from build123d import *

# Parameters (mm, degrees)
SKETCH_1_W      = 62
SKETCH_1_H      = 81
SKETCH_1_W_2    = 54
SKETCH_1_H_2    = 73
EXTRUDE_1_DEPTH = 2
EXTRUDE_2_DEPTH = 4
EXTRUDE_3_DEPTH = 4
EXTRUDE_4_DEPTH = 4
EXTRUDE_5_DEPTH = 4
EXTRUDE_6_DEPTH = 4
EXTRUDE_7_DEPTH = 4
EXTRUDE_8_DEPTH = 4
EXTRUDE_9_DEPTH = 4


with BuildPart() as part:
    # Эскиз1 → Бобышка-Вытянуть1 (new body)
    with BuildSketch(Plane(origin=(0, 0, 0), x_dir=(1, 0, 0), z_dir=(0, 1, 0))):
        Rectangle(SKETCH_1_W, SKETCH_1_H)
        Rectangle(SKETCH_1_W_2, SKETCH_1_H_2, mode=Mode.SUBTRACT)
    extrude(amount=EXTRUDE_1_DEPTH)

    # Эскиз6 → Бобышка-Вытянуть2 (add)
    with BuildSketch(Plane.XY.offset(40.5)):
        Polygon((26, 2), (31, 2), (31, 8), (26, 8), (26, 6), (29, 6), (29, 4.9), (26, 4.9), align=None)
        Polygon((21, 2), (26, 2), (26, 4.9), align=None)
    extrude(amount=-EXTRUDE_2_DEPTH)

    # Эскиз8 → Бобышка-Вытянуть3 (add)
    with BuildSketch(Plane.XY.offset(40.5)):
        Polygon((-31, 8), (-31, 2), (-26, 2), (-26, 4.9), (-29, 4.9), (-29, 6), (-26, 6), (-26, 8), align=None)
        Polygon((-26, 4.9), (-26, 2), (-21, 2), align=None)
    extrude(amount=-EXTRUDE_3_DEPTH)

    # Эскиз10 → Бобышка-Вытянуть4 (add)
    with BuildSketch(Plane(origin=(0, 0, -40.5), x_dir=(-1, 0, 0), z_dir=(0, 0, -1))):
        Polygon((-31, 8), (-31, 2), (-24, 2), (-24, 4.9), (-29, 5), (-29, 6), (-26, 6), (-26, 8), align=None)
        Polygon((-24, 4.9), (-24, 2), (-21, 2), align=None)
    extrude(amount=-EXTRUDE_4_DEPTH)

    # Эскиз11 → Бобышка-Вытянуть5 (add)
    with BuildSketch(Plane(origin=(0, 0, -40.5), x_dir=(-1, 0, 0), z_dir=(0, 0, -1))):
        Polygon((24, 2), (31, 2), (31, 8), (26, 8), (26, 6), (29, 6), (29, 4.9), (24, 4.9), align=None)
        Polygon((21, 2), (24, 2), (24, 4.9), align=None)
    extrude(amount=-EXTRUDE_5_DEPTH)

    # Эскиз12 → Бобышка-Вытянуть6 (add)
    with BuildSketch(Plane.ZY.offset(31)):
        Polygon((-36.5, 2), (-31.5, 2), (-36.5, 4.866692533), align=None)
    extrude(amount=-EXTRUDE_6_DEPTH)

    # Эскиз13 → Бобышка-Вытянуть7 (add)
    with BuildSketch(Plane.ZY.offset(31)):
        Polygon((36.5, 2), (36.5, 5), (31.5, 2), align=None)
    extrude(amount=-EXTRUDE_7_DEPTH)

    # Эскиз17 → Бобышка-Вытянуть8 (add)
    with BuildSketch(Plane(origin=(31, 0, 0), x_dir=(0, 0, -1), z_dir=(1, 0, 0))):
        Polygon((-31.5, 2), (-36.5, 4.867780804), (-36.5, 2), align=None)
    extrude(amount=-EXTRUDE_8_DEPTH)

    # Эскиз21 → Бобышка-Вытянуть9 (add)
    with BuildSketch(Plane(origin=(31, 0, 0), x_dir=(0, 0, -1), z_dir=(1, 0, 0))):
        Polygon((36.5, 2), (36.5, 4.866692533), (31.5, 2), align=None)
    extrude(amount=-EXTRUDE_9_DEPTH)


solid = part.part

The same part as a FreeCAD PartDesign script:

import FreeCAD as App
import Part
import Sketcher

doc = App.newDocument("Part")
body = doc.addObject("PartDesign::Body", "Body")

sketch1 = doc.addObject("Sketcher::SketchObject", "Sketch")
body.addObject(sketch1)
sketch1.AttachmentSupport = (doc.XZ_Plane, [""])
sketch1.MapMode = "FlatFace"
sketch1.addGeometry(Part.LineSegment(App.Vector(-31, -40, 0), App.Vector(-31, 40, 0)), False)
sketch1.addGeometry(Part.LineSegment(App.Vector(-31, 40, 0), App.Vector(31, 40, 0)), False)
sketch1.addGeometry(Part.LineSegment(App.Vector(31, 40, 0), App.Vector(31, -40, 0)), False)
sketch1.addGeometry(Part.LineSegment(App.Vector(31, -40, 0), App.Vector(-31, -40, 0)), False)
sketch1.addGeometry(Part.LineSegment(App.Vector(27, 36, 0), App.Vector(-27, 36, 0)), False)
sketch1.addGeometry(Part.LineSegment(App.Vector(-27, 36, 0), App.Vector(-27, -36, 0)), False)
sketch1.addGeometry(Part.LineSegment(App.Vector(-27, -36, 0), App.Vector(27, -36, 0)), False)
sketch1.addGeometry(Part.LineSegment(App.Vector(27, -36, 0), App.Vector(27, 36, 0)), False)
sketch1.addConstraint(Sketcher.Constraint("Coincident", 0, 2, 1, 1))
sketch1.addConstraint(Sketcher.Constraint("Coincident", 1, 2, 2, 1))
sketch1.addConstraint(Sketcher.Constraint("Coincident", 2, 2, 3, 1))
sketch1.addConstraint(Sketcher.Constraint("Coincident", 3, 2, 0, 1))
sketch1.addConstraint(Sketcher.Constraint("Coincident", 4, 2, 5, 1))
sketch1.addConstraint(Sketcher.Constraint("Coincident", 5, 2, 6, 1))
sketch1.addConstraint(Sketcher.Constraint("Coincident", 6, 2, 7, 1))
sketch1.addConstraint(Sketcher.Constraint("Coincident", 7, 2, 4, 1))
sketch1.addConstraint(Sketcher.Constraint("Vertical", 0))
sketch1.addConstraint(Sketcher.Constraint("Horizontal", 1))
sketch1.addConstraint(Sketcher.Constraint("Vertical", 2))
sketch1.addConstraint(Sketcher.Constraint("Horizontal", 3))
sketch1.addConstraint(Sketcher.Constraint("Horizontal", 4))
sketch1.addConstraint(Sketcher.Constraint("Vertical", 5))
sketch1.addConstraint(Sketcher.Constraint("Horizontal", 6))
sketch1.addConstraint(Sketcher.Constraint("Vertical", 7))
sketch1.addConstraint(Sketcher.Constraint("Symmetric", 0, 2, 2, 2, -1, 1))
sketch1.addConstraint(Sketcher.Constraint("Symmetric", 4, 2, 6, 2, -1, 1))
sketch1.addConstraint(Sketcher.Constraint("DistanceX", 1, 1, 1, 2, 62.0))
sketch1.addConstraint(Sketcher.Constraint("DistanceX", 4, 2, 4, 1, 54.0))
sketch1.addConstraint(Sketcher.Constraint("DistanceY", 0, 1, 0, 2, 81.0))
sketch1.addConstraint(Sketcher.Constraint("DistanceY", 5, 2, 5, 1, 73.0))
pad1 = doc.addObject("PartDesign::Pad", "Pad")
body.addObject(pad1)
pad1.Profile = sketch1
pad1.Length = 2
pad1.Reversed = True

sketch2 = doc.addObject("Sketcher::SketchObject", "Sketch001")
body.addObject(sketch2)
sketch2.AttachmentSupport = (doc.XY_Plane, [""])
sketch2.MapMode = "FlatFace"
sketch2.AttachmentOffset = App.Placement(App.Vector(0, 0, 40.5), App.Rotation())
sketch2.addGeometry(Part.LineSegment(App.Vector(31, 2, 0), App.Vector(31, 8, 0)), False)
sketch2.addGeometry(Part.LineSegment(App.Vector(31, 8, 0), App.Vector(26, 8, 0)), False)
sketch2.addGeometry(Part.LineSegment(App.Vector(26, 8, 0), App.Vector(26, 6, 0)), False)
sketch2.addGeometry(Part.LineSegment(App.Vector(26, 6, 0), App.Vector(29, 6, 0)), False)
sketch2.addGeometry(Part.LineSegment(App.Vector(29, 6, 0), App.Vector(29, 4.9, 0)), False)
sketch2.addGeometry(Part.LineSegment(App.Vector(29, 4.9, 0), App.Vector(26, 4.9, 0)), False)
sketch2.addGeometry(Part.LineSegment(App.Vector(26, 4.9, 0), App.Vector(21, 2, 0)), False)
sketch2.addGeometry(Part.LineSegment(App.Vector(21, 2, 0), App.Vector(31, 2, 0)), False)
sketch2.addConstraint(Sketcher.Constraint("Coincident", 0, 2, 1, 1))
sketch2.addConstraint(Sketcher.Constraint("Coincident", 1, 2, 2, 1))
sketch2.addConstraint(Sketcher.Constraint("Coincident", 2, 2, 3, 1))
sketch2.addConstraint(Sketcher.Constraint("Coincident", 3, 2, 4, 1))
sketch2.addConstraint(Sketcher.Constraint("Coincident", 4, 2, 5, 1))
sketch2.addConstraint(Sketcher.Constraint("Coincident", 5, 2, 6, 1))
sketch2.addConstraint(Sketcher.Constraint("Coincident", 6, 2, 7, 1))
sketch2.addConstraint(Sketcher.Constraint("Coincident", 7, 2, 0, 1))
sketch2.addConstraint(Sketcher.Constraint("Vertical", 0))
sketch2.addConstraint(Sketcher.Constraint("Horizontal", 1))
sketch2.addConstraint(Sketcher.Constraint("Vertical", 2))
sketch2.addConstraint(Sketcher.Constraint("Horizontal", 3))
sketch2.addConstraint(Sketcher.Constraint("Vertical", 4))
sketch2.addConstraint(Sketcher.Constraint("Horizontal", 5))
sketch2.addConstraint(Sketcher.Constraint("Horizontal", 7))
sketch2.addConstraint(Sketcher.Constraint("Vertical", 2, 2, 5, 2))
sketch2.addConstraint(Sketcher.Constraint("DistanceX", 1, 2, 1, 1, 5.0))
sketch2.addConstraint(Sketcher.Constraint("DistanceX", 3, 1, 3, 2, 3.0))
sketch2.addConstraint(Sketcher.Constraint("DistanceX", 7, 1, 7, 2, 10.0))
sketch2.addConstraint(Sketcher.Constraint("DistanceY", 0, 1, 0, 2, 6.0))
sketch2.addConstraint(Sketcher.Constraint("DistanceY", 2, 2, 2, 1, 2.0))
sketch2.addConstraint(Sketcher.Constraint("DistanceY", 4, 2, 4, 1, 1.1))
sketch2.addConstraint(Sketcher.Constraint("DistanceX", -1, 1, 0, 2, 31.0))
sketch2.addConstraint(Sketcher.Constraint("DistanceY", -1, 1, 0, 2, 8.0))
pad2 = doc.addObject("PartDesign::Pad", "Pad001")
body.addObject(pad2)
pad2.Profile = sketch2
pad2.Length = 4
pad2.Reversed = True

sketch3 = doc.addObject("Sketcher::SketchObject", "Sketch002")
body.addObject(sketch3)
sketch3.AttachmentSupport = (doc.XY_Plane, [""])
sketch3.MapMode = "FlatFace"
sketch3.AttachmentOffset = App.Placement(App.Vector(0, 0, 40.5), App.Rotation())
sketch3.addGeometry(Part.LineSegment(App.Vector(-31, 8, 0), App.Vector(-31, 2, 0)), False)
sketch3.addGeometry(Part.LineSegment(App.Vector(-31, 2, 0), App.Vector(-21, 2, 0)), False)
sketch3.addGeometry(Part.LineSegment(App.Vector(-21, 2, 0), App.Vector(-26, 4.9, 0)), False)
sketch3.addGeometry(Part.LineSegment(App.Vector(-26, 4.9, 0), App.Vector(-29, 4.9, 0)), False)
sketch3.addGeometry(Part.LineSegment(App.Vector(-29, 4.9, 0), App.Vector(-29, 6, 0)), False)
sketch3.addGeometry(Part.LineSegment(App.Vector(-29, 6, 0), App.Vector(-26, 6, 0)), False)
sketch3.addGeometry(Part.LineSegment(App.Vector(-26, 6, 0), App.Vector(-26, 8, 0)), False)
sketch3.addGeometry(Part.LineSegment(App.Vector(-26, 8, 0), App.Vector(-31, 8, 0)), False)
sketch3.addConstraint(Sketcher.Constraint("Coincident", 0, 2, 1, 1))
sketch3.addConstraint(Sketcher.Constraint("Coincident", 1, 2, 2, 1))
sketch3.addConstraint(Sketcher.Constraint("Coincident", 2, 2, 3, 1))
sketch3.addConstraint(Sketcher.Constraint("Coincident", 3, 2, 4, 1))
sketch3.addConstraint(Sketcher.Constraint("Coincident", 4, 2, 5, 1))
sketch3.addConstraint(Sketcher.Constraint("Coincident", 5, 2, 6, 1))
sketch3.addConstraint(Sketcher.Constraint("Coincident", 6, 2, 7, 1))
sketch3.addConstraint(Sketcher.Constraint("Coincident", 7, 2, 0, 1))
sketch3.addConstraint(Sketcher.Constraint("Vertical", 0))
sketch3.addConstraint(Sketcher.Constraint("Horizontal", 1))
sketch3.addConstraint(Sketcher.Constraint("Horizontal", 3))
sketch3.addConstraint(Sketcher.Constraint("Vertical", 4))
sketch3.addConstraint(Sketcher.Constraint("Horizontal", 5))
sketch3.addConstraint(Sketcher.Constraint("Vertical", 6))
sketch3.addConstraint(Sketcher.Constraint("Horizontal", 7))
sketch3.addConstraint(Sketcher.Constraint("Vertical", 2, 2, 5, 2))
sketch3.addConstraint(Sketcher.Constraint("DistanceX", 1, 1, 1, 2, 10.0))
sketch3.addConstraint(Sketcher.Constraint("DistanceX", 3, 2, 3, 1, 3.0))
sketch3.addConstraint(Sketcher.Constraint("DistanceX", 7, 2, 7, 1, 5.0))
sketch3.addConstraint(Sketcher.Constraint("DistanceY", 0, 2, 0, 1, 6.0))
sketch3.addConstraint(Sketcher.Constraint("DistanceY", 6, 1, 6, 2, 2.0))
sketch3.addConstraint(Sketcher.Constraint("DistanceY", 4, 1, 4, 2, 1.1))
sketch3.addConstraint(Sketcher.Constraint("DistanceX", 0, 2, -1, 1, 31.0))
sketch3.addConstraint(Sketcher.Constraint("DistanceY", -1, 1, 0, 2, 2.0))
pad3 = doc.addObject("PartDesign::Pad", "Pad002")
body.addObject(pad3)
pad3.Profile = sketch3
pad3.Length = 4
pad3.Reversed = True

sketch4 = doc.addObject("Sketcher::SketchObject", "Sketch003")
body.addObject(sketch4)
sketch4.AttachmentSupport = (doc.XY_Plane, [""])
sketch4.MapMode = "FlatFace"
sketch4.AttachmentOffset = App.Placement(App.Vector(0, 0, -40.5), App.Rotation())
sketch4.addGeometry(Part.LineSegment(App.Vector(31, 8, 0), App.Vector(31, 2, 0)), False)
sketch4.addGeometry(Part.LineSegment(App.Vector(31, 2, 0), App.Vector(21, 2, 0)), False)
sketch4.addGeometry(Part.LineSegment(App.Vector(21, 2, 0), App.Vector(24, 4.9, 0)), False)
sketch4.addGeometry(Part.LineSegment(App.Vector(24, 4.9, 0), App.Vector(29, 5, 0)), False)
sketch4.addGeometry(Part.LineSegment(App.Vector(29, 5, 0), App.Vector(29, 6, 0)), False)
sketch4.addGeometry(Part.LineSegment(App.Vector(29, 6, 0), App.Vector(26, 6, 0)), False)
sketch4.addGeometry(Part.LineSegment(App.Vector(26, 6, 0), App.Vector(26, 8, 0)), False)
sketch4.addGeometry(Part.LineSegment(App.Vector(26, 8, 0), App.Vector(31, 8, 0)), False)
sketch4.addConstraint(Sketcher.Constraint("Coincident", 0, 2, 1, 1))
sketch4.addConstraint(Sketcher.Constraint("Coincident", 1, 2, 2, 1))
sketch4.addConstraint(Sketcher.Constraint("Coincident", 2, 2, 3, 1))
sketch4.addConstraint(Sketcher.Constraint("Coincident", 3, 2, 4, 1))
sketch4.addConstraint(Sketcher.Constraint("Coincident", 4, 2, 5, 1))
sketch4.addConstraint(Sketcher.Constraint("Coincident", 5, 2, 6, 1))
sketch4.addConstraint(Sketcher.Constraint("Coincident", 6, 2, 7, 1))
sketch4.addConstraint(Sketcher.Constraint("Coincident", 7, 2, 0, 1))
sketch4.addConstraint(Sketcher.Constraint("Vertical", 0))
sketch4.addConstraint(Sketcher.Constraint("Horizontal", 1))
sketch4.addConstraint(Sketcher.Constraint("Vertical", 4))
sketch4.addConstraint(Sketcher.Constraint("Horizontal", 5))
sketch4.addConstraint(Sketcher.Constraint("Vertical", 6))
sketch4.addConstraint(Sketcher.Constraint("Horizontal", 7))
sketch4.addConstraint(Sketcher.Constraint("DistanceX", 1, 2, 1, 1, 10.0))
sketch4.addConstraint(Sketcher.Constraint("DistanceX", 5, 2, 5, 1, 3.0))
sketch4.addConstraint(Sketcher.Constraint("DistanceX", 7, 1, 7, 2, 5.0))
sketch4.addConstraint(Sketcher.Constraint("DistanceY", 0, 2, 0, 1, 6.0))
sketch4.addConstraint(Sketcher.Constraint("DistanceY", 4, 1, 4, 2, 1.0))
sketch4.addConstraint(Sketcher.Constraint("DistanceY", 6, 1, 6, 2, 2.0))
sketch4.addConstraint(Sketcher.Constraint("DistanceX", -1, 1, 0, 2, 31.0))
sketch4.addConstraint(Sketcher.Constraint("DistanceY", -1, 1, 0, 2, 2.0))
sketch4.addConstraint(Sketcher.Constraint("DistanceX", -1, 1, 2, 2, 24.0))
sketch4.addConstraint(Sketcher.Constraint("DistanceY", -1, 1, 2, 2, 4.9))
pad4 = doc.addObject("PartDesign::Pad", "Pad003")
body.addObject(pad4)
pad4.Profile = sketch4
pad4.Length = 4

sketch5 = doc.addObject("Sketcher::SketchObject", "Sketch004")
body.addObject(sketch5)
sketch5.AttachmentSupport = (doc.XY_Plane, [""])
sketch5.MapMode = "FlatFace"
sketch5.AttachmentOffset = App.Placement(App.Vector(0, 0, -40.5), App.Rotation())
sketch5.addGeometry(Part.LineSegment(App.Vector(-31, 2, 0), App.Vector(-31, 8, 0)), False)
sketch5.addGeometry(Part.LineSegment(App.Vector(-31, 8, 0), App.Vector(-26, 8, 0)), False)
sketch5.addGeometry(Part.LineSegment(App.Vector(-26, 8, 0), App.Vector(-26, 6, 0)), False)
sketch5.addGeometry(Part.LineSegment(App.Vector(-26, 6, 0), App.Vector(-29, 6, 0)), False)
sketch5.addGeometry(Part.LineSegment(App.Vector(-29, 6, 0), App.Vector(-29, 4.9, 0)), False)
sketch5.addGeometry(Part.LineSegment(App.Vector(-29, 4.9, 0), App.Vector(-24, 4.9, 0)), False)
sketch5.addGeometry(Part.LineSegment(App.Vector(-24, 4.9, 0), App.Vector(-21, 2, 0)), False)
sketch5.addGeometry(Part.LineSegment(App.Vector(-21, 2, 0), App.Vector(-31, 2, 0)), False)
sketch5.addConstraint(Sketcher.Constraint("Coincident", 0, 2, 1, 1))
sketch5.addConstraint(Sketcher.Constraint("Coincident", 1, 2, 2, 1))
sketch5.addConstraint(Sketcher.Constraint("Coincident", 2, 2, 3, 1))
sketch5.addConstraint(Sketcher.Constraint("Coincident", 3, 2, 4, 1))
sketch5.addConstraint(Sketcher.Constraint("Coincident", 4, 2, 5, 1))
sketch5.addConstraint(Sketcher.Constraint("Coincident", 5, 2, 6, 1))
sketch5.addConstraint(Sketcher.Constraint("Coincident", 6, 2, 7, 1))
sketch5.addConstraint(Sketcher.Constraint("Coincident", 7, 2, 0, 1))
sketch5.addConstraint(Sketcher.Constraint("Vertical", 0))
sketch5.addConstraint(Sketcher.Constraint("Horizontal", 1))
sketch5.addConstraint(Sketcher.Constraint("Vertical", 2))
sketch5.addConstraint(Sketcher.Constraint("Horizontal", 3))
sketch5.addConstraint(Sketcher.Constraint("Vertical", 4))
sketch5.addConstraint(Sketcher.Constraint("Horizontal", 5))
sketch5.addConstraint(Sketcher.Constraint("Horizontal", 7))
sketch5.addConstraint(Sketcher.Constraint("Equal", 1, 5))
sketch5.addConstraint(Sketcher.Constraint("DistanceX", 1, 1, 1, 2, 5.0))
sketch5.addConstraint(Sketcher.Constraint("DistanceX", 3, 2, 3, 1, 3.0))
sketch5.addConstraint(Sketcher.Constraint("DistanceX", 7, 2, 7, 1, 10.0))
sketch5.addConstraint(Sketcher.Constraint("DistanceY", 0, 1, 0, 2, 6.0))
sketch5.addConstraint(Sketcher.Constraint("DistanceY", 2, 2, 2, 1, 2.0))
sketch5.addConstraint(Sketcher.Constraint("DistanceY", 4, 2, 4, 1, 1.1))
sketch5.addConstraint(Sketcher.Constraint("DistanceX", 0, 2, -1, 1, 31.0))
sketch5.addConstraint(Sketcher.Constraint("DistanceY", -1, 1, 0, 2, 8.0))
pad5 = doc.addObject("PartDesign::Pad", "Pad004")
body.addObject(pad5)
pad5.Profile = sketch5
pad5.Length = 4

sketch6 = doc.addObject("Sketcher::SketchObject", "Sketch005")
body.addObject(sketch6)
sketch6.AttachmentSupport = (doc.YZ_Plane, [""])
sketch6.MapMode = "FlatFace"
sketch6.AttachmentOffset = App.Placement(App.Vector(0, 0, -31), App.Rotation())
sketch6.addGeometry(Part.LineSegment(App.Vector(2, -36.5, 0), App.Vector(2, -31.5, 0)), False)
sketch6.addGeometry(Part.LineSegment(App.Vector(2, -31.5, 0), App.Vector(4.9, -36.5, 0)), False)
sketch6.addGeometry(Part.LineSegment(App.Vector(4.9, -36.5, 0), App.Vector(2, -36.5, 0)), False)
sketch6.addConstraint(Sketcher.Constraint("Coincident", 0, 2, 1, 1))
sketch6.addConstraint(Sketcher.Constraint("Coincident", 1, 2, 2, 1))
sketch6.addConstraint(Sketcher.Constraint("Coincident", 2, 2, 0, 1))
sketch6.addConstraint(Sketcher.Constraint("Vertical", 0))
sketch6.addConstraint(Sketcher.Constraint("Horizontal", 2))
sketch6.addConstraint(Sketcher.Constraint("DistanceY", 0, 1, 0, 2, 5.0))
sketch6.addConstraint(Sketcher.Constraint("DistanceX", -1, 1, 0, 2, 2.0))
sketch6.addConstraint(Sketcher.Constraint("DistanceY", 0, 2, -1, 1, 31.5))
sketch6.addConstraint(Sketcher.Constraint("Distance", 1, 5.763499))
pad6 = doc.addObject("PartDesign::Pad", "Pad005")
body.addObject(pad6)
pad6.Profile = sketch6
pad6.Length = 4

sketch7 = doc.addObject("Sketcher::SketchObject", "Sketch006")
body.addObject(sketch7)
sketch7.AttachmentSupport = (doc.YZ_Plane, [""])
sketch7.MapMode = "FlatFace"
sketch7.AttachmentOffset = App.Placement(App.Vector(0, 0, -31), App.Rotation())
sketch7.addGeometry(Part.LineSegment(App.Vector(2, 36.5, 0), App.Vector(5, 36.5, 0)), False)
sketch7.addGeometry(Part.LineSegment(App.Vector(5, 36.5, 0), App.Vector(2, 31.5, 0)), False)
sketch7.addGeometry(Part.LineSegment(App.Vector(2, 31.5, 0), App.Vector(2, 36.5, 0)), False)
sketch7.addConstraint(Sketcher.Constraint("Coincident", 0, 2, 1, 1))
sketch7.addConstraint(Sketcher.Constraint("Coincident", 1, 2, 2, 1))
sketch7.addConstraint(Sketcher.Constraint("Coincident", 2, 2, 0, 1))
sketch7.addConstraint(Sketcher.Constraint("Horizontal", 0))
sketch7.addConstraint(Sketcher.Constraint("Vertical", 2))
sketch7.addConstraint(Sketcher.Constraint("DistanceX", 0, 1, 0, 2, 3.0))
sketch7.addConstraint(Sketcher.Constraint("DistanceY", 2, 1, 2, 2, 5.0))
sketch7.addConstraint(Sketcher.Constraint("DistanceX", -1, 1, 0, 2, 5.0))
sketch7.addConstraint(Sketcher.Constraint("DistanceY", -1, 1, 0, 2, 36.5))
pad7 = doc.addObject("PartDesign::Pad", "Pad006")
body.addObject(pad7)
pad7.Profile = sketch7
pad7.Length = 4

sketch8 = doc.addObject("Sketcher::SketchObject", "Sketch007")
body.addObject(sketch8)
sketch8.AttachmentSupport = (doc.YZ_Plane, [""])
sketch8.MapMode = "FlatFace"
sketch8.AttachmentOffset = App.Placement(App.Vector(0, 0, 31), App.Rotation())
sketch8.addGeometry(Part.LineSegment(App.Vector(2, 31.5, 0), App.Vector(4.9, 36.5, 0)), False)
sketch8.addGeometry(Part.LineSegment(App.Vector(4.9, 36.5, 0), App.Vector(2, 36.5, 0)), False)
sketch8.addGeometry(Part.LineSegment(App.Vector(2, 36.5, 0), App.Vector(2, 31.5, 0)), False)
sketch8.addConstraint(Sketcher.Constraint("Coincident", 0, 2, 1, 1))
sketch8.addConstraint(Sketcher.Constraint("Coincident", 1, 2, 2, 1))
sketch8.addConstraint(Sketcher.Constraint("Coincident", 2, 2, 0, 1))
sketch8.addConstraint(Sketcher.Constraint("Horizontal", 1))
sketch8.addConstraint(Sketcher.Constraint("Vertical", 2))
sketch8.addConstraint(Sketcher.Constraint("DistanceY", 2, 2, 2, 1, 5.0))
sketch8.addConstraint(Sketcher.Constraint("DistanceX", -1, 1, 1, 2, 2.0))
sketch8.addConstraint(Sketcher.Constraint("DistanceY", -1, 1, 0, 2, 36.5))
sketch8.addConstraint(Sketcher.Constraint("DistanceX", 1, 2, 1, 1, 2.867781))
pad8 = doc.addObject("PartDesign::Pad", "Pad007")
body.addObject(pad8)
pad8.Profile = sketch8
pad8.Length = 4
pad8.Reversed = True

sketch9 = doc.addObject("Sketcher::SketchObject", "Sketch008")
body.addObject(sketch9)
sketch9.AttachmentSupport = (doc.YZ_Plane, [""])
sketch9.MapMode = "FlatFace"
sketch9.AttachmentOffset = App.Placement(App.Vector(0, 0, 31), App.Rotation())
sketch9.addGeometry(Part.LineSegment(App.Vector(2, -36.5, 0), App.Vector(4.9, -36.5, 0)), False)
sketch9.addGeometry(Part.LineSegment(App.Vector(4.9, -36.5, 0), App.Vector(2, -31.5, 0)), False)
sketch9.addGeometry(Part.LineSegment(App.Vector(2, -31.5, 0), App.Vector(2, -36.5, 0)), False)
sketch9.addConstraint(Sketcher.Constraint("Coincident", 0, 2, 1, 1))
sketch9.addConstraint(Sketcher.Constraint("Coincident", 1, 2, 2, 1))
sketch9.addConstraint(Sketcher.Constraint("Coincident", 2, 2, 0, 1))
sketch9.addConstraint(Sketcher.Constraint("Horizontal", 0))
sketch9.addConstraint(Sketcher.Constraint("Vertical", 2))
sketch9.addConstraint(Sketcher.Constraint("DistanceY", 2, 2, 2, 1, 5.0))
sketch9.addConstraint(Sketcher.Constraint("DistanceX", -1, 1, 1, 2, 2.0))
sketch9.addConstraint(Sketcher.Constraint("DistanceY", 0, 2, -1, 1, 36.5))
sketch9.addConstraint(Sketcher.Constraint("Distance", 1, 5.763499))
pad9 = doc.addObject("PartDesign::Pad", "Pad008")
body.addObject(pad9)
pad9.Profile = sketch9
pad9.Length = 4
pad9.Reversed = True

doc.recompute()
